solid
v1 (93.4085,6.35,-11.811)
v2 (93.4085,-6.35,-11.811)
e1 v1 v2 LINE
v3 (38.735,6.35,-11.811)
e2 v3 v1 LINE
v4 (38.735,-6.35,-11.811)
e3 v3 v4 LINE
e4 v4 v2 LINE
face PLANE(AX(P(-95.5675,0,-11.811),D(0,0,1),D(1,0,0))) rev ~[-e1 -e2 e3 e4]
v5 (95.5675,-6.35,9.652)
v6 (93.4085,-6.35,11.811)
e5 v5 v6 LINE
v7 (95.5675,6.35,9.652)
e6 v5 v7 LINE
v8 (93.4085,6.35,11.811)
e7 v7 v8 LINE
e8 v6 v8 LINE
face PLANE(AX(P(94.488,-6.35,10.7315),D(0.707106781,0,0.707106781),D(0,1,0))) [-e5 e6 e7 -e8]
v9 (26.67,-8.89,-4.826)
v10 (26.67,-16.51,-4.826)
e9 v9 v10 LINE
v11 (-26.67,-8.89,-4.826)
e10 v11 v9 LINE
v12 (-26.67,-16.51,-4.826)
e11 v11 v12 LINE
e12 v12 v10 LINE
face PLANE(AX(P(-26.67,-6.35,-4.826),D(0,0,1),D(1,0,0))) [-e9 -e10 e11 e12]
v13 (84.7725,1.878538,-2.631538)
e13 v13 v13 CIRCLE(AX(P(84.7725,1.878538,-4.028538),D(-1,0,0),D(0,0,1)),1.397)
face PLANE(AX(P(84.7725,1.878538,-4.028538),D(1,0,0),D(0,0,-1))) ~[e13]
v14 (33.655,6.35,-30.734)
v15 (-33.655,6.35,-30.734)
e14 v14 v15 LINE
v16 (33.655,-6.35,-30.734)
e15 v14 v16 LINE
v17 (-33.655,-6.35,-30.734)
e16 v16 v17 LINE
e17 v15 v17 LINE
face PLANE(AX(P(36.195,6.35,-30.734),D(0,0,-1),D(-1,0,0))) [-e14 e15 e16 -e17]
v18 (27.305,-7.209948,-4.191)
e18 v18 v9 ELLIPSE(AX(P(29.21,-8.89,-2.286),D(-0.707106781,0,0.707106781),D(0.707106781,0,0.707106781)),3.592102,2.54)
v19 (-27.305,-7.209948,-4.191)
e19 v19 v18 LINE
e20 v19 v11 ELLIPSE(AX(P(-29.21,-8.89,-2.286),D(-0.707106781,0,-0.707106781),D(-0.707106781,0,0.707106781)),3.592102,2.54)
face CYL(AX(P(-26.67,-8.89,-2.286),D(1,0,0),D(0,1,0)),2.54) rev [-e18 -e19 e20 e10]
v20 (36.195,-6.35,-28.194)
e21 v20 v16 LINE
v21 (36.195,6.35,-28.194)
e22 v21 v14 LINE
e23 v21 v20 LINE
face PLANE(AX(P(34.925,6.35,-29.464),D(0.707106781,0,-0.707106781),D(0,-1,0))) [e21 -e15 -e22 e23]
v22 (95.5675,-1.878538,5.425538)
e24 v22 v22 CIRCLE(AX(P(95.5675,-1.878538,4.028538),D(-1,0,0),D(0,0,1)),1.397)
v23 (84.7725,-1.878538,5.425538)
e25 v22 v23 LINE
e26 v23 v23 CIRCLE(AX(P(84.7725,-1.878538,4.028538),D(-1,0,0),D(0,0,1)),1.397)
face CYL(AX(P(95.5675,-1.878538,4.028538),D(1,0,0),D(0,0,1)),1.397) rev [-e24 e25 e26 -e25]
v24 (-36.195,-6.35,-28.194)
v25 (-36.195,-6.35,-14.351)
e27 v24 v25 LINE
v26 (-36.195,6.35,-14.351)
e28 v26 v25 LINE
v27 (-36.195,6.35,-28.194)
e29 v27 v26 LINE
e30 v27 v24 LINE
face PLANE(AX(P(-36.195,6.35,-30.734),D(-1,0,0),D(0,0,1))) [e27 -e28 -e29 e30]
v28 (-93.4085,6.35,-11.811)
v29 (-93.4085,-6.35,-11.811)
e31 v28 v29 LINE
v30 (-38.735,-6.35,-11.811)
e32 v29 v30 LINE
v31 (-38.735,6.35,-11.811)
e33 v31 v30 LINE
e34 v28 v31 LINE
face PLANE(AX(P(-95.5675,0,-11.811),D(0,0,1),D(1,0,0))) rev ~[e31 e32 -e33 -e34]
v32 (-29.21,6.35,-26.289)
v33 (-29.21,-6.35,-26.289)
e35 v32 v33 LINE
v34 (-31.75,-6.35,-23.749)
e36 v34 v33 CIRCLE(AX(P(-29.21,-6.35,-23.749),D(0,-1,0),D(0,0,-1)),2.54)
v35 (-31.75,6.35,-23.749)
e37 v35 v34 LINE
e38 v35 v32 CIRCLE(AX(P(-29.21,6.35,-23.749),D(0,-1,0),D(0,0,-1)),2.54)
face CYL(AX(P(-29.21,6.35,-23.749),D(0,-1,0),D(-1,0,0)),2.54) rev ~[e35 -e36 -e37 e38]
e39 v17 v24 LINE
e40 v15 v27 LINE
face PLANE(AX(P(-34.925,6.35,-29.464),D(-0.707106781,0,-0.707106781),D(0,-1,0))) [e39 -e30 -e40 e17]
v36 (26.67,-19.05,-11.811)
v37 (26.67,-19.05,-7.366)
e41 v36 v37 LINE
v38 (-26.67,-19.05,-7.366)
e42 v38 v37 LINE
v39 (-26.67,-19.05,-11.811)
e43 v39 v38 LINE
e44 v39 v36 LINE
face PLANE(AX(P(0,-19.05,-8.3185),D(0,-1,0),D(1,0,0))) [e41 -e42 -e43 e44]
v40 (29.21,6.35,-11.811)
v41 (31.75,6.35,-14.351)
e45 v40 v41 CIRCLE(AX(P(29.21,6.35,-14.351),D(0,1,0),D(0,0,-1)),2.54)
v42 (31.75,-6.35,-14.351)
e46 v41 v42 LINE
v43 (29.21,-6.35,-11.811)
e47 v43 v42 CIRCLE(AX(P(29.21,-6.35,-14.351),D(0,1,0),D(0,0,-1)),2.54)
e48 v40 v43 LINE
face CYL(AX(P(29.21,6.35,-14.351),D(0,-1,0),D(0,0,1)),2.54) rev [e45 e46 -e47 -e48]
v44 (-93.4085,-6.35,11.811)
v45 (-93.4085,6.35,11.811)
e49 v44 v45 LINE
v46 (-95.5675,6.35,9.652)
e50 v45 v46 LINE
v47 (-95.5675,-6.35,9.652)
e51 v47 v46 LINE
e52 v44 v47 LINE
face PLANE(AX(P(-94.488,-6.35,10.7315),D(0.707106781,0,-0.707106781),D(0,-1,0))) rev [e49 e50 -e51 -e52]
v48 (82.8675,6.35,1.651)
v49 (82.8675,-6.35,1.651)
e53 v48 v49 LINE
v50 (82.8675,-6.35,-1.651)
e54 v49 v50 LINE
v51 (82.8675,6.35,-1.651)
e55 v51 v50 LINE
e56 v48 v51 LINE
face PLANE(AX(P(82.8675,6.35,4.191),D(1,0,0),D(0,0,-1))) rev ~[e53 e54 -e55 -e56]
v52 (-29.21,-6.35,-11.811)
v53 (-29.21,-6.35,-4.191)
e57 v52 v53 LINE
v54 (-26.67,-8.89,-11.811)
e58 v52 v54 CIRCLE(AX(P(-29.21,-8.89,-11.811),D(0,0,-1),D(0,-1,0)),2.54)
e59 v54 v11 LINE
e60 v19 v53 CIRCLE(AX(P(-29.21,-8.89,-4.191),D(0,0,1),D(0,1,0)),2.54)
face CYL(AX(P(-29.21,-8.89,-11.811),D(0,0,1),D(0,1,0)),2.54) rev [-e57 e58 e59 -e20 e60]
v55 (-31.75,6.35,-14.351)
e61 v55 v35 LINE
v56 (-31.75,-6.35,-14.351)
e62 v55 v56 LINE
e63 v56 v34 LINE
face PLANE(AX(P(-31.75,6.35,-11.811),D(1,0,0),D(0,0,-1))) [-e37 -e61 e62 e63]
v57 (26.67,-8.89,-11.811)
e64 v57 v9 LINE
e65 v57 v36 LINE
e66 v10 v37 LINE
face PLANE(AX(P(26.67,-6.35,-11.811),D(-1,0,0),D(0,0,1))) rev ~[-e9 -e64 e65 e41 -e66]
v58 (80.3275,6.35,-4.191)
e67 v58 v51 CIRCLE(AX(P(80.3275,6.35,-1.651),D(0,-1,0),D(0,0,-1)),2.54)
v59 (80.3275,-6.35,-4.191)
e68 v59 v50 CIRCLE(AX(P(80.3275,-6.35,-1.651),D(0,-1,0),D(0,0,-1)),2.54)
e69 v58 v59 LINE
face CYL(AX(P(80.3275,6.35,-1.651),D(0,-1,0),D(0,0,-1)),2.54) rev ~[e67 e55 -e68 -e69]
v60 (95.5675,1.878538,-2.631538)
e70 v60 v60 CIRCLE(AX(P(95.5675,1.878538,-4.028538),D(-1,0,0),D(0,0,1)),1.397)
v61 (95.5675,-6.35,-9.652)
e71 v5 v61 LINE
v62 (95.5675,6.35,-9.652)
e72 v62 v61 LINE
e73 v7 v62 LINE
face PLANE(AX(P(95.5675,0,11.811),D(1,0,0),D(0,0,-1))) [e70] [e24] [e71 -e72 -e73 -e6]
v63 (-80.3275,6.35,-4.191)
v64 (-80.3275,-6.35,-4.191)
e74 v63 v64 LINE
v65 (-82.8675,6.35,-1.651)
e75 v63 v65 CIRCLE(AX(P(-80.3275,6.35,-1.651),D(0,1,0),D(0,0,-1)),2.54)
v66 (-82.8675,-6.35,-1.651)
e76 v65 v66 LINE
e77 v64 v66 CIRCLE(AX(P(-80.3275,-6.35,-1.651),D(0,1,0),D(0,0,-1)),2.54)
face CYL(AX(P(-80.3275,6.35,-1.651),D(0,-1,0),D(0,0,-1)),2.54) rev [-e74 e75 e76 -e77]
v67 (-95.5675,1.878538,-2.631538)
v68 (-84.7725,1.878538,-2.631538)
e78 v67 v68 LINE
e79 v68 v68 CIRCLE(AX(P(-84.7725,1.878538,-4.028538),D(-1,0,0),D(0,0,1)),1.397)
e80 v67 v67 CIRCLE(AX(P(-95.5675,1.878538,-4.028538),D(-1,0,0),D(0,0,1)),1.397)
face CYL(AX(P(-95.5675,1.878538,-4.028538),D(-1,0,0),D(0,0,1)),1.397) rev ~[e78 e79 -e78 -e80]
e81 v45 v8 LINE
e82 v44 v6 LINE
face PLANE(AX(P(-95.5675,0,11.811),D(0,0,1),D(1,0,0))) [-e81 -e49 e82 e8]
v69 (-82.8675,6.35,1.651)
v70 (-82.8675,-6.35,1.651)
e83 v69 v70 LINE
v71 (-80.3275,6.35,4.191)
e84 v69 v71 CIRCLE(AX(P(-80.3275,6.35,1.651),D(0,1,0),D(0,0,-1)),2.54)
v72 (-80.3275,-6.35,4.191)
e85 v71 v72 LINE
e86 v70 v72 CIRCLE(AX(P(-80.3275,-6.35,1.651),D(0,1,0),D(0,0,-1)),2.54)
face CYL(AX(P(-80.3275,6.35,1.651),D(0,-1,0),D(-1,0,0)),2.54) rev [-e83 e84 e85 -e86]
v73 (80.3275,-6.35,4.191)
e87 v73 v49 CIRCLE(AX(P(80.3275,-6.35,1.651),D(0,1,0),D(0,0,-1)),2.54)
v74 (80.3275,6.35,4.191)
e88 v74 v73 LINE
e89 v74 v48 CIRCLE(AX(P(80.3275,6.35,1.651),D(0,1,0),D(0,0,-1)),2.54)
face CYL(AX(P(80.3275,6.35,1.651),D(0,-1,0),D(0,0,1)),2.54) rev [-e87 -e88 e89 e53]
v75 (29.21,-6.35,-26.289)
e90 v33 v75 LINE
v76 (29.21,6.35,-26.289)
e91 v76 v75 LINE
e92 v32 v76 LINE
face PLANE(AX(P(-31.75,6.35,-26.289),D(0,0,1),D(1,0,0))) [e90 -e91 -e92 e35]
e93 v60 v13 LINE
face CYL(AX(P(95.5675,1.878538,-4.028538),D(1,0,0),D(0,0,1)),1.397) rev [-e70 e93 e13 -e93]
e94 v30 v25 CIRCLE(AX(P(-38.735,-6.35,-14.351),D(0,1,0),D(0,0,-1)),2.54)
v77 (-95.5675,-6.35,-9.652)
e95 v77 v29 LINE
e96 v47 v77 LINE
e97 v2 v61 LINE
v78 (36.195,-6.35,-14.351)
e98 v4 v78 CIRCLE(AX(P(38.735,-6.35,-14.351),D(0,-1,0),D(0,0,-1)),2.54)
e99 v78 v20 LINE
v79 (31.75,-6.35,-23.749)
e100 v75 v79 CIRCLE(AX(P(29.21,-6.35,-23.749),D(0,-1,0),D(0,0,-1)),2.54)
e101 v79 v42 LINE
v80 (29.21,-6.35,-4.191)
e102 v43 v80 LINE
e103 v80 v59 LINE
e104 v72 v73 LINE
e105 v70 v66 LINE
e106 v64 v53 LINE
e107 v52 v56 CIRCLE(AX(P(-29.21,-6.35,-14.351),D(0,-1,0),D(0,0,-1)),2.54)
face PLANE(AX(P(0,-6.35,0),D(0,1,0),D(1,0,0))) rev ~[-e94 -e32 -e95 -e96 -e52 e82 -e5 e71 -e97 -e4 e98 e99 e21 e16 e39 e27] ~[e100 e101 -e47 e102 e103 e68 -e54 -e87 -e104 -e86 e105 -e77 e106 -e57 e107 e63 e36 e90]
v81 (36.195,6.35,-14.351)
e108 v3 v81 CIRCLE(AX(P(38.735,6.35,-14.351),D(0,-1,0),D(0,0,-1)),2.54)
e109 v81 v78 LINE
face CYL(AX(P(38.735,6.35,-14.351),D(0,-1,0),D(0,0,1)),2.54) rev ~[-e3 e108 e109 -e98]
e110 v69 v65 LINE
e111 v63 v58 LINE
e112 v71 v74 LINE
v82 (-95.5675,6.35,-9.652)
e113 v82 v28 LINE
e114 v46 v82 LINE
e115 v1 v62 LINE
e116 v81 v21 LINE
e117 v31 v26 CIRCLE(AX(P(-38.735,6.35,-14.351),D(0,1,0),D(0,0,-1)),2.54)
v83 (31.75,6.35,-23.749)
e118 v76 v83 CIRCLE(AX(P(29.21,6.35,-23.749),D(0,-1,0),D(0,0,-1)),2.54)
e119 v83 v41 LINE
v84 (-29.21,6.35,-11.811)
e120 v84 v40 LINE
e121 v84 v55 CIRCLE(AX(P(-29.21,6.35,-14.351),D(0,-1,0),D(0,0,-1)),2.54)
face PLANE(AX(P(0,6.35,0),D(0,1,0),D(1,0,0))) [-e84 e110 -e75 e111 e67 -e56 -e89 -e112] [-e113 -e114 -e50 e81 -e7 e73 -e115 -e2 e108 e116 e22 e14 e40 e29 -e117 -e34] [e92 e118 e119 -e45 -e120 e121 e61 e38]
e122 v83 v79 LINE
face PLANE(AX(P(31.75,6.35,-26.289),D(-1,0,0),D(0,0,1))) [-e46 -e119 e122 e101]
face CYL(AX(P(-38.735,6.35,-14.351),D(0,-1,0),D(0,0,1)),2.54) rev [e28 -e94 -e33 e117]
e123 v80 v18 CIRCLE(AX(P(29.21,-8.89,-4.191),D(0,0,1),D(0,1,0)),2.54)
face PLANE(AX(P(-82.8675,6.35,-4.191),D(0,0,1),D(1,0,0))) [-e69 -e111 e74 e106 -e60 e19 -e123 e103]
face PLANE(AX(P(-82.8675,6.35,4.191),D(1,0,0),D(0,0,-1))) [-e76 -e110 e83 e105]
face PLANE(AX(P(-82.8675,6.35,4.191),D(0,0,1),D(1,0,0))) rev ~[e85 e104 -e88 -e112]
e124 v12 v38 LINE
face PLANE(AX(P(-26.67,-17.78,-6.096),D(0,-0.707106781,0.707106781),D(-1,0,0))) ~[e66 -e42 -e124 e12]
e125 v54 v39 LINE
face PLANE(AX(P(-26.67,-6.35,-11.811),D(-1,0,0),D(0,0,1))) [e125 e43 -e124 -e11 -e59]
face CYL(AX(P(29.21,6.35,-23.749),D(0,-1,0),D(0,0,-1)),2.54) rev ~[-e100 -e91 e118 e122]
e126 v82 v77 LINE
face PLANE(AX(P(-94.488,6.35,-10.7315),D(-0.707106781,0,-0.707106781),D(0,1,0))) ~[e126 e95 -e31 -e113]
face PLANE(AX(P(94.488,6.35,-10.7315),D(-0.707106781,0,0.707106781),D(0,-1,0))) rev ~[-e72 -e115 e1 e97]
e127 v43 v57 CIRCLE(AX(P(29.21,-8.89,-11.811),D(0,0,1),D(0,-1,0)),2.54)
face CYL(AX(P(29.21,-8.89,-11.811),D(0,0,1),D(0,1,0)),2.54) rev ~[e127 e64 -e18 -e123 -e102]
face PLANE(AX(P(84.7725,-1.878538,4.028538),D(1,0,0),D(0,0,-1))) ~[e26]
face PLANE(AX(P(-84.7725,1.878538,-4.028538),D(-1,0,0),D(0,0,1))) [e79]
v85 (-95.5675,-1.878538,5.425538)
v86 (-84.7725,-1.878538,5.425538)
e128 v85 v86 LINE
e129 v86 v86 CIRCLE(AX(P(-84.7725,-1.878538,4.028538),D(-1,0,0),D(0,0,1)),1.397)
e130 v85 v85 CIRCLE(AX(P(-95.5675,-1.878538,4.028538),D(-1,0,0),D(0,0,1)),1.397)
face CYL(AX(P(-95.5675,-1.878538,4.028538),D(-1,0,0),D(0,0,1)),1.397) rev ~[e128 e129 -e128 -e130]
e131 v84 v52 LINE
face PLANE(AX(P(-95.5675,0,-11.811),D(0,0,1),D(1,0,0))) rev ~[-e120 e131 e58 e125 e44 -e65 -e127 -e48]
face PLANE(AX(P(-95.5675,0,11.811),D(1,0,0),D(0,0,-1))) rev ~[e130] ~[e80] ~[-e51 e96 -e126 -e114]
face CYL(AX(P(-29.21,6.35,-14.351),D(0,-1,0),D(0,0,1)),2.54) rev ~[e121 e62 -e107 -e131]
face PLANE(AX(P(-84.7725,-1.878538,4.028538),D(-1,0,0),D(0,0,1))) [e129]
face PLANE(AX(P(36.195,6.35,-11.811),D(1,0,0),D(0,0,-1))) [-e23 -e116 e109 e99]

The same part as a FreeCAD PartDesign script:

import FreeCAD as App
import Part
import Sketcher
from FreeCAD import Vector
Q = App.Units.Quantity


def edges_at(feature, points):
    """Names of the edges that pass closest to the given points."""
    edges = feature.Shape.Edges
    near = lambda p: min(range(len(edges)), key=lambda i: edges[i].distToShape(Part.Vertex(*p))[0])
    return sorted({f"Edge{near(p) + 1}" for p in points})


def add_polygon(sketch, points):
    """Adds a closed chain of lines whose ends are joined by coincident constraints."""
    first, n = sketch.GeometryCount, len(points)
    for a, b in zip(points, points[1:] + points[:1]):
        sketch.addGeometry(Part.LineSegment(App.Vector(*a, 0), App.Vector(*b, 0)), False)
    for i in range(n):
        sketch.addConstraint(Sketcher.Constraint("Coincident", first + i, 2, first + (i + 1) % n, 1))

doc = App.newDocument("Part")
body = doc.addObject("PartDesign::Body", "Body")

sketch1 = doc.addObject("Sketcher::SketchObject", "Sketch")
body.addObject(sketch1)
sketch1.AttachmentSupport = (doc.XZ_Plane, [""])
sketch1.MapMode = "FlatFace"
add_polygon(sketch1, [(-95.5675, -11.811), (-95.5675, 11.811), (95.5675, 11.811), (95.5675, -11.811)])
sketch1.addConstraint(Sketcher.Constraint("Vertical", 0))
sketch1.addConstraint(Sketcher.Constraint("Horizontal", 1))
sketch1.addConstraint(Sketcher.Constraint("Vertical", 2))
sketch1.addConstraint(Sketcher.Constraint("Horizontal", 3))
sketch1.addConstraint(Sketcher.Constraint("Symmetric", 0, 2, 2, 2, -1, 1))
sketch1.addConstraint(Sketcher.Constraint("DistanceY", 0, 1, 0, 2, Q("0.93 in")))
sketch1.addConstraint(Sketcher.Constraint("DistanceX", 1, 1, 1, 2, Q("7.525 in")))
pad1 = doc.addObject("PartDesign::Pad", "Pad")
body.addObject(pad1)
pad1.Profile = sketch1
pad1.Length = Q("0.5 in")
pad1.Midplane = True

sketch2 = doc.addObject("Sketcher::SketchObject", "Sketch001")
body.addObject(sketch2)
sketch2.AttachmentSupport = (doc.XZ_Plane, [""])
sketch2.MapMode = "FlatFace"
sketch2.AttachmentOffset = App.Placement(Vector(0, 0, -0.25 * 25.4), App.Rotation())
add_polygon(sketch2, [(-31.75, -11.811), (-31.75, -26.289), (31.75, -26.289), (31.75, -11.811), (36.195, -11.811), (36.195, -30.734), (-36.195, -30.734), (-36.195, -11.811)])
sketch2.addConstraint(Sketcher.Constraint("Vertical", 0))
sketch2.addConstraint(Sketcher.Constraint("Horizontal", 1))
sketch2.addConstraint(Sketcher.Constraint("Vertical", 2))
sketch2.addConstraint(Sketcher.Constraint("Horizontal", 3))
sketch2.addConstraint(Sketcher.Constraint("Vertical", 4))
sketch2.addConstraint(Sketcher.Constraint("Horizontal", 5))
sketch2.addConstraint(Sketcher.Constraint("Vertical", 6))
sketch2.addConstraint(Sketcher.Constraint("Horizontal", 7))
sketch2.addConstraint(Sketcher.Constraint("Symmetric", 3, 2, 6, 2, -2))
sketch2.addConstraint(Sketcher.Constraint("Equal", 3, 7))
sketch2.addConstraint(Sketcher.Constraint("DistanceX", 1, 1, 1, 2, Q("2.5 in")))
sketch2.addConstraint(Sketcher.Constraint("DistanceX", 5, 2, 5, 1, Q("2.85 in")))
sketch2.addConstraint(Sketcher.Constraint("DistanceY", 0, 2, 0, 1, Q("0.57 in")))
sketch2.addConstraint(Sketcher.Constraint("DistanceY", 4, 2, 4, 1, Q("0.745 in")))
sketch2.addConstraint(Sketcher.Constraint("DistanceY", 4, 2, -1, 1, Q("1.21 in")))
pad2 = doc.addObject("PartDesign::Pad", "Pad001")
body.addObject(pad2)
pad2.Profile = sketch2
pad2.Length = Q("0.5 in")
doc.recompute()

fillet = doc.addObject("PartDesign::Fillet", "Fillet")
body.addObject(fillet)
fillet.Base = (pad2, edges_at(pad2, [
    (-31.75, 0, -11.811),
    (-36.195, 0, -11.811),
    (36.195, 0, -11.811),
    (31.75, 0, -11.811),
    (31.75, 0, -26.289),
    (-31.75, 0, -26.289),
]))
fillet.Radius = Q("0.1 in")

sketch3 = doc.addObject("Sketcher::SketchObject", "Sketch002")
body.addObject(sketch3)
sketch3.AttachmentSupport = (doc.YZ_Plane, [""])
sketch3.MapMode = "FlatFace"
sketch3.AttachmentOffset = App.Placement(Vector(0, 0, -3.7625 * 25.4), App.Rotation())
sketch3.addGeometry(Part.Circle(Vector(1.878538, -4.028538, 0), Vector(0, 0, 1), 1.397), False)
sketch3.addGeometry(Part.Circle(Vector(-1.878538, 4.028538, 0), Vector(0, 0, 1), 1.397), False)
sketch3.addConstraint(Sketcher.Constraint("Equal", 0, 1))
sketch3.addConstraint(Sketcher.Constraint("Symmetric", 0, 3, 1, 3, -1, 1))
sketch3.addConstraint(Sketcher.Constraint("Diameter", 0, Q("0.11 in")))
sketch3.addConstraint(Sketcher.Constraint("DistanceX", -1, 1, 0, 3, Q("1.878538 mm")))
sketch3.addConstraint(Sketcher.Constraint("DistanceY", 0, 3, -1, 1, Q("4.028538 mm")))
pocket1 = doc.addObject("PartDesign::Pocket", "Pocket")
body.addObject(pocket1)
pocket1.Profile = sketch3
pocket1.Length = Q("0.425 in")
pocket1.Reversed = True
doc.recompute()

mirrored = doc.addObject("PartDesign::Mirrored", "Mirrored")
body.addObject(mirrored)
mirrored.Originals = [pocket1]
mirrored.MirrorPlane = (doc.YZ_Plane, [""])
body.Tip = mirrored

sketch4 = doc.addObject("Sketcher::SketchObject", "Sketch003")
body.addObject(sketch4)
sketch4.AttachmentSupport = (doc.XZ_Plane, [""])
sketch4.MapMode = "FlatFace"
sketch4.AttachmentOffset = App.Placement(Vector(0, 0, 0.25 * 25.4), App.Rotation())
add_polygon(sketch4, [(-26.67, -4.826), (-26.67, -11.811), (26.67, -11.811), (26.67, -4.826)])
sketch4.addConstraint(Sketcher.Constraint("Vertical", 0))
sketch4.addConstraint(Sketcher.Constraint("Horizontal", 1))
sketch4.addConstraint(Sketcher.Constraint("Vertical", 2))
sketch4.addConstraint(Sketcher.Constraint("Horizontal", 3))
sketch4.addConstraint(Sketcher.Constraint("DistanceX", 1, 1, 1, 2, Q("2.1 in")))
sketch4.addConstraint(Sketcher.Constraint("DistanceY", 0, 2, 0, 1, Q("0.275 in")))
sketch4.addConstraint(Sketcher.Constraint("DistanceX", 0, 2, -1, 1, Q("1.05 in")))
sketch4.addConstraint(Sketcher.Constraint("DistanceY", 2, 2, -1, 1, Q("0.19 in")))
pad3 = doc.addObject("PartDesign::Pad", "Pad002")
body.addObject(pad3)
pad3.Profile = sketch4
pad3.Length = Q("0.5 in")
doc.recompute()

fillet2 = doc.addObject("PartDesign::Fillet", "Fillet001")
body.addObject(fillet2)
fillet2.Base = (pad3, edges_at(pad3, [(-26.67, -6.35, -8.319), (0, -6.35, -4.826), (26.67, -6.35, -8.319)]))
fillet2.Radius = Q("0.1 in")
doc.recompute()

chamfer = doc.addObject("PartDesign::Chamfer", "Chamfer")
body.addObject(chamfer)
chamfer.Base = (fillet2, edges_at(fillet2, [(0, -19.05, -4.826), (-36.195, 0, -30.734), (36.195, 0, -30.734)]))
chamfer.Size = Q("0.1 in")
doc.recompute()

chamfer2 = doc.addObject("PartDesign::Chamfer", "Chamfer001")
body.addObject(chamfer2)
chamfer2.Base = (chamfer, edges_at(chamfer, [
    (-95.567, 0, -11.811),
    (95.567, 0, -11.811),
    (95.567, 0, 11.811),
    (-95.567, 0, 11.811),
]))
chamfer2.Size = Q("0.085 in")

sketch5 = doc.addObject("Sketcher::SketchObject", "Sketch004")
body.addObject(sketch5)
sketch5.AttachmentSupport = (doc.XZ_Plane, [""])
sketch5.MapMode = "FlatFace"
sketch5.AttachmentOffset = App.Placement(Vector(0, 0, -0.25 * 25.4), App.Rotation())
add_polygon(sketch5, [(-82.8675, -4.191), (-82.8675, 4.191), (82.8675, 4.191), (82.8675, -4.191)])
sketch5.addConstraint(Sketcher.Constraint("Vertical", 0))
sketch5.addConstraint(Sketcher.Constraint("Horizontal", 1))
sketch5.addConstraint(Sketcher.Constraint("Vertical", 2))
sketch5.addConstraint(Sketcher.Constraint("Horizontal", 3))
sketch5.addConstraint(Sketcher.Constraint("Symmetric", 0, 2, 2, 2, -1, 1))
sketch5.addConstraint(Sketcher.Constraint("DistanceY", 0, 1, 0, 2, Q("0.33 in")))
sketch5.addConstraint(Sketcher.Constraint("DistanceX", 1, 1, 1, 2, Q("6.525 in")))
pocket2 = doc.addObject("PartDesign::Pocket", "Pocket001")
body.addObject(pocket2)
pocket2.Profile = sketch5
pocket2.Type = "ThroughAll"
pocket2.Reversed = True
doc.recompute()

fillet3 = doc.addObject("PartDesign::Fillet", "Fillet002")
body.addObject(fillet3)
fillet3.Base = (pocket2, edges_at(pocket2, [
    (-82.868, 0, 4.191),
    (82.868, 0, -4.191),
    (82.868, 0, 4.191),
    (-82.868, 0, -4.191),
]))
fillet3.Radius = Q("0.1 in")

doc.recompute()
